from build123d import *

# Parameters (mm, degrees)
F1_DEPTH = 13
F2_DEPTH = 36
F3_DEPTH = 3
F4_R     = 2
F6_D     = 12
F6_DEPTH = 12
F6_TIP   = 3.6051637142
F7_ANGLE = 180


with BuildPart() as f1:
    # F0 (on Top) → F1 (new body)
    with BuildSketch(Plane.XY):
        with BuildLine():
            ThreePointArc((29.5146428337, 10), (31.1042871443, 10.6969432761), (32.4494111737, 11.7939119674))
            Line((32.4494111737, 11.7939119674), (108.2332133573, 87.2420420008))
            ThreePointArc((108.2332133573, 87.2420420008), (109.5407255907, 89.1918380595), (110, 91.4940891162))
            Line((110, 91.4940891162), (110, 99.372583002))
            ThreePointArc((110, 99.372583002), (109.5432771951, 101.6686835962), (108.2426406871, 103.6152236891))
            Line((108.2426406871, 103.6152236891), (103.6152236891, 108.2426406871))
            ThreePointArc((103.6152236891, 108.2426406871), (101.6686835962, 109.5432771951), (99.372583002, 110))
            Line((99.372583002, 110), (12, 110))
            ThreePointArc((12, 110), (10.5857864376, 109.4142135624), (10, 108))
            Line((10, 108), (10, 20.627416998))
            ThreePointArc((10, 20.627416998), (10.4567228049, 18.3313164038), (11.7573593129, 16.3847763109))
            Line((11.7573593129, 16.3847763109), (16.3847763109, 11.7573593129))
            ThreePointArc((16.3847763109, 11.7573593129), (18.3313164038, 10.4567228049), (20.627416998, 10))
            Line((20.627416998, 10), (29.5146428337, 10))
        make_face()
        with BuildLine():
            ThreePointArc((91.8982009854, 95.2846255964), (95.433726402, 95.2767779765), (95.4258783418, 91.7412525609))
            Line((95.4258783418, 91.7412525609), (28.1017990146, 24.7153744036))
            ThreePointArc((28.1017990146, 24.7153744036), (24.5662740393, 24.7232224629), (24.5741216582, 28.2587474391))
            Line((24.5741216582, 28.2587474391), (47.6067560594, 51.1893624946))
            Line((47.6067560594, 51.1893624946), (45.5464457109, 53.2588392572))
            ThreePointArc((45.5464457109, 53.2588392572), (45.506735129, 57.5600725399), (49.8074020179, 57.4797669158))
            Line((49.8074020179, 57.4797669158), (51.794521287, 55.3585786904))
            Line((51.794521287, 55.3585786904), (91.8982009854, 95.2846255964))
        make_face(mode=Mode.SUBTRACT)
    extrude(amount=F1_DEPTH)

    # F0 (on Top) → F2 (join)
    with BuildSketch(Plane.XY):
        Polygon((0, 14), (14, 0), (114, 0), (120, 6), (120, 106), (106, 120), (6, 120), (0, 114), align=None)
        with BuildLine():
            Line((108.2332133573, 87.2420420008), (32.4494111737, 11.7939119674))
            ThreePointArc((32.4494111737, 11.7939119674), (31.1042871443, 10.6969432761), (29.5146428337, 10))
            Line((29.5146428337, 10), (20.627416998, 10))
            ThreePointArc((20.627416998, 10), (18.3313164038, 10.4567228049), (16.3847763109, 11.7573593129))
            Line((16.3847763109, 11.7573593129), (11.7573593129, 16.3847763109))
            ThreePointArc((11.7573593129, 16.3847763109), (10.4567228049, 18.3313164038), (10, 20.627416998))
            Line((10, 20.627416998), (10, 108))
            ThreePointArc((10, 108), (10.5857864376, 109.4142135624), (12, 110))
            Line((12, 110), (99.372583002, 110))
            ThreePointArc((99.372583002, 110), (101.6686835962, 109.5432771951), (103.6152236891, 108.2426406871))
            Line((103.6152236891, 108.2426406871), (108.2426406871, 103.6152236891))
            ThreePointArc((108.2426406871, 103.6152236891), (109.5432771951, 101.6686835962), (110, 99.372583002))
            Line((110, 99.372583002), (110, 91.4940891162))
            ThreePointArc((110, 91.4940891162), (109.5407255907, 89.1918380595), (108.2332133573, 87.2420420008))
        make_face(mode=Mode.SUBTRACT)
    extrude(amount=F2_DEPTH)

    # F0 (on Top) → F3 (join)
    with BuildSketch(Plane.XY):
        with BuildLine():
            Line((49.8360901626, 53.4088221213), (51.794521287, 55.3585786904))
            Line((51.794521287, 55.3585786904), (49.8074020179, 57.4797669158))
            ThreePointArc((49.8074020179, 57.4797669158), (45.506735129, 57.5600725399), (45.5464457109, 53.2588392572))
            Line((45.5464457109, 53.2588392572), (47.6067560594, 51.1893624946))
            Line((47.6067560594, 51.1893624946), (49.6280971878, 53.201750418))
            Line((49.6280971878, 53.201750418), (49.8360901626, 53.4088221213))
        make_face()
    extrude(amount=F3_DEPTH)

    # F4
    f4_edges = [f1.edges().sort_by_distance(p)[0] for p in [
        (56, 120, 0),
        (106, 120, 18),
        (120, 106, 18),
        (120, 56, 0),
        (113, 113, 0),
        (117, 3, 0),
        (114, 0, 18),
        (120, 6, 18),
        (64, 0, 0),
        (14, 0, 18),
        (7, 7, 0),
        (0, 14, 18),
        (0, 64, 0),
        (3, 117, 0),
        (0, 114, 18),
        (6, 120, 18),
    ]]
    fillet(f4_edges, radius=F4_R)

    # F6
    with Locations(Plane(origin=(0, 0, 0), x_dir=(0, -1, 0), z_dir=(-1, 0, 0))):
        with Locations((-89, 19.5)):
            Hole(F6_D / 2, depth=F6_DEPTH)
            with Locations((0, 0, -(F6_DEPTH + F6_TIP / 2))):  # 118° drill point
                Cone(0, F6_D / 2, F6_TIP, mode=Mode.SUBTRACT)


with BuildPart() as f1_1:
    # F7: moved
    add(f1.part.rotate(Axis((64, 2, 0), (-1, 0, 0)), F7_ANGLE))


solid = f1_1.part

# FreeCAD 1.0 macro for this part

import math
import FreeCAD as App
import Part
import Sketcher
Q = App.Units.Quantity


def edges_at(feature, points):
    """Names of the edges that pass closest to the given points."""
    edges = feature.Shape.Edges
    near = lambda p: min(range(len(edges)), key=lambda i: edges[i].distToShape(Part.Vertex(*p))[0])
    return sorted({f"Edge{near(p) + 1}" for p in points})

doc = App.newDocument("Part")
body = doc.addObject("PartDesign::Body", "Body")

# Sketch on XY plane
sketch1 = body.newObject("Sketcher::SketchObject", "Sketch")
sketch1.AttachmentSupport = (doc.getObject("XY_Plane"), [""])
sketch1.MapMode = "FlatFace"
sketch1.addGeometry([
    Part.ArcOfCircle(Part.Circle(App.Vector(27.752919, 16.179648, 0), App.Vector(0, 0, 1), 6.425864), math.radians(-74.087951), math.radians(-43.040341)),  # 0
    Part.LineSegment(App.Vector(32.449411, 11.793912, 0), App.Vector(108.233213, 87.242042, 0)),  # 1
    Part.ArcOfCircle(Part.Circle(App.Vector(104, 91.494089, 0), App.Vector(0, 0, 1), 6), math.radians(-45.127173), math.radians(0)),  # 2
    Part.LineSegment(App.Vector(110, 91.494089, 0), App.Vector(110, 99.372583, 0)),  # 3
    Part.ArcOfCircle(Part.Circle(App.Vector(104, 99.372583, 0), App.Vector(0, 0, 1), 6), math.radians(0), math.radians(45)),  # 4
    Part.LineSegment(App.Vector(108.242641, 103.615224, 0), App.Vector(103.615224, 108.242641, 0)),  # 5
    Part.ArcOfCircle(Part.Circle(App.Vector(99.372583, 104, 0), App.Vector(0, 0, 1), 6), math.radians(45), math.radians(90)),  # 6
    Part.LineSegment(App.Vector(99.372583, 110, 0), App.Vector(12, 110, 0)),  # 7
    Part.ArcOfCircle(Part.Circle(App.Vector(12, 108, 0), App.Vector(0, 0, 1), 2), math.radians(90), math.radians(180)),  # 8
    Part.LineSegment(App.Vector(10, 108, 0), App.Vector(10, 20.627417, 0)),  # 9
    Part.ArcOfCircle(Part.Circle(App.Vector(16, 20.627417, 0), App.Vector(0, 0, 1), 6), math.radians(180), math.radians(225)),  # 10
    Part.LineSegment(App.Vector(11.757359, 16.384776, 0), App.Vector(16.384776, 11.757359, 0)),  # 11
    Part.ArcOfCircle(Part.Circle(App.Vector(20.627417, 16, 0), App.Vector(0, 0, 1), 6), math.radians(-135), math.radians(-90)),  # 12
    Part.LineSegment(App.Vector(20.627417, 10, 0), App.Vector(29.514643, 10, 0)),  # 13
    Part.LineSegment(App.Vector(51.794521, 55.358579, 0), App.Vector(91.898201, 95.284626, 0)),  # 14
    Part.ArcOfCircle(Part.Circle(App.Vector(93.66204, 93.512939, 0), App.Vector(0, 0, 1), 2.5), math.radians(-45.127187), math.radians(134.872827)),  # 15
    Part.LineSegment(App.Vector(95.425878, 91.741253, 0), App.Vector(28.101799, 24.715374, 0)),  # 16
    Part.ArcOfCircle(Part.Circle(App.Vector(26.337961, 26.487061, 0), App.Vector(0, 0, 1), 2.5), math.radians(134.872827), math.radians(314.872813)),  # 17
    Part.LineSegment(App.Vector(24.574122, 28.258747, 0), App.Vector(47.606756, 51.189362, 0)),  # 18
    Part.LineSegment(App.Vector(47.606756, 51.189362, 0), App.Vector(45.546446, 53.258839, 0)),  # 19
    Part.ArcOfCircle(Part.Circle(App.Vector(47.618021, 55.428765, 0), App.Vector(0, 0, 1), 3), math.radians(43.130894), math.radians(226.328316)),  # 20
    Part.LineSegment(App.Vector(49.807402, 57.479767, 0), App.Vector(51.794521, 55.358579, 0)),  # 21
], False)
sketch1.addConstraint([
    Sketcher.Constraint("Coincident", 0, 2, 1, 1),
    Sketcher.Constraint("Tangent", 1, 2, 2, 1),
    Sketcher.Constraint("Tangent", 2, 2, 3, 1),
    Sketcher.Constraint("Tangent", 3, 2, 4, 1),
    Sketcher.Constraint("Tangent", 4, 2, 5, 1),
    Sketcher.Constraint("Tangent", 5, 2, 6, 1),
    Sketcher.Constraint("Tangent", 6, 2, 7, 1),
    Sketcher.Constraint("Tangent", 7, 2, 8, 1),
    Sketcher.Constraint("Tangent", 8, 2, 9, 1),
    Sketcher.Constraint("Tangent", 9, 2, 10, 1),
    Sketcher.Constraint("Tangent", 10, 2, 11, 1),
    Sketcher.Constraint("Tangent", 11, 2, 12, 1),
    Sketcher.Constraint("Tangent", 12, 2, 13, 1),
    Sketcher.Constraint("Coincident", 13, 2, 0, 1),
    Sketcher.Constraint("Tangent", 14, 2, 15, 2),
    Sketcher.Constraint("Tangent", 15, 1, 16, 1),
    Sketcher.Constraint("Tangent", 16, 2, 17, 2),
    Sketcher.Constraint("Tangent", 17, 1, 18, 1),
    Sketcher.Constraint("Coincident", 18, 2, 19, 1),
    Sketcher.Constraint("Coincident", 19, 2, 20, 2),
    Sketcher.Constraint("Tangent", 20, 1, 21, 1),
    Sketcher.Constraint("Coincident", 21, 2, 14, 1),
    Sketcher.Constraint("Vertical", 3),
    Sketcher.Constraint("Horizontal", 7),
    Sketcher.Constraint("Vertical", 9),
    Sketcher.Constraint("Horizontal", 13),
    Sketcher.Constraint("Equal", 2, 4),
    Sketcher.Constraint("Equal", 4, 6),
    Sketcher.Constraint("Equal", 6, 10),
    Sketcher.Constraint("Equal", 10, 12),
    Sketcher.Constraint("Equal", 15, 17),
    Sketcher.Constraint("Parallel", 5, 11),
    Sketcher.Constraint("Parallel", 1, 14),
    Sketcher.Constraint("Parallel", 14, 16),
    Sketcher.Constraint("Parallel", 16, 18),
    Sketcher.Constraint("Perpendicular", 18, 19),
    Sketcher.Constraint("Equal", 7, 9),
    Sketcher.Constraint("Equal", 5, 11),
    Sketcher.Constraint("Radius", 2, Q("6 mm")),
    Sketcher.Constraint("Radius", 8, Q("2 mm")),
    Sketcher.Constraint("Radius", 20, Q("3 mm")),
    Sketcher.Constraint("Radius", 15, Q("2.5 mm")),
    Sketcher.Constraint("Angle", 5, Q("135 deg")),
    Sketcher.Constraint("Distance", 16, Q("95 mm")),
    Sketcher.Constraint("DistanceX", -1, 1, 2, 3, Q("104 mm")),
    Sketcher.Constraint("DistanceY", -1, 1, 6, 3, Q("104 mm")),
    Sketcher.Constraint("DistanceX", -1, 1, 8, 3, Q("12 mm")),
    Sketcher.Constraint("Radius", 0, Q("6.425864 mm")),
    Sketcher.Constraint("Distance", 14, Q("56.589702 mm")),
    Sketcher.Constraint("DistanceX", -1, 1, 14, 2, Q("91.898201 mm")),
    Sketcher.Constraint("DistanceX", -1, 1, 16, 2, Q("28.101799 mm")),
    Sketcher.Constraint("DistanceX", 12, 3, 0, 3, Q("7.125502 mm")),
    Sketcher.Constraint("DistanceY", 0, 3, 17, 1, Q("12.079099 mm")),
    Sketcher.Constraint("DistanceY", 17, 3, 18, 2, Q("24.702301 mm")),
    Sketcher.Constraint("DistanceX", 20, 3, 21, 2, Q("4.1765 mm")),
    Sketcher.Constraint("Distance", 1, Q("106.937388 mm")),
    Sketcher.Constraint("DistanceX", 7, 2, 7, 1, Q("87.372583 mm")),
    Sketcher.Constraint("DistanceX", 13, 1, 13, 2, Q("8.887226 mm")),
    Sketcher.Constraint("DistanceY", -1, 1, 19, 2, Q("53.258839 mm")),
])
pad1 = body.newObject("PartDesign::Pad", "Pad")
pad1.Profile = sketch1
pad1.Length = 13

# Sketch on XY plane
sketch2 = body.newObject("Sketcher::SketchObject", "Sketch001")
sketch2.AttachmentSupport = (doc.getObject("XY_Plane"), [""])
sketch2.MapMode = "FlatFace"
sketch2.addGeometry([
    Part.LineSegment(App.Vector(0, 14, 0), App.Vector(14, 0, 0)),  # 0
    Part.LineSegment(App.Vector(14, 0, 0), App.Vector(114, 0, 0)),  # 1
    Part.LineSegment(App.Vector(114, 0, 0), App.Vector(120, 6, 0)),  # 2
    Part.LineSegment(App.Vector(120, 6, 0), App.Vector(120, 106, 0)),  # 3
    Part.LineSegment(App.Vector(120, 106, 0), App.Vector(106, 120, 0)),  # 4
    Part.LineSegment(App.Vector(106, 120, 0), App.Vector(6, 120, 0)),  # 5
    Part.LineSegment(App.Vector(6, 120, 0), App.Vector(0, 114, 0)),  # 6
    Part.LineSegment(App.Vector(0, 114, 0), App.Vector(0, 14, 0)),  # 7
    Part.ArcOfCircle(Part.Circle(App.Vector(104, 91.494089, 0), App.Vector(0, 0, 1), 6), math.radians(-45.127173), math.radians(0)),  # 8
    Part.LineSegment(App.Vector(108.233213, 87.242042, 0), App.Vector(32.449411, 11.793912, 0)),  # 9
    Part.ArcOfCircle(Part.Circle(App.Vector(27.752919, 16.179648, 0), App.Vector(0, 0, 1), 6.425864), math.radians(-74.087951), math.radians(-43.040341)),  # 10
    Part.LineSegment(App.Vector(29.514643, 10, 0), App.Vector(20.627417, 10, 0)),  # 11
    Part.ArcOfCircle(Part.Circle(App.Vector(20.627417, 16, 0), App.Vector(0, 0, 1), 6), math.radians(-135), math.radians(-90)),  # 12
    Part.LineSegment(App.Vector(16.384776, 11.757359, 0), App.Vector(11.757359, 16.384776, 0)),  # 13
    Part.ArcOfCircle(Part.Circle(App.Vector(16, 20.627417, 0), App.Vector(0, 0, 1), 6), math.radians(180), math.radians(225)),  # 14
    Part.LineSegment(App.Vector(10, 20.627417, 0), App.Vector(10, 108, 0)),  # 15
    Part.ArcOfCircle(Part.Circle(App.Vector(12, 108, 0), App.Vector(0, 0, 1), 2), math.radians(90), math.radians(180)),  # 16
    Part.LineSegment(App.Vector(12, 110, 0), App.Vector(99.372583, 110, 0)),  # 17
    Part.ArcOfCircle(Part.Circle(App.Vector(99.372583, 104, 0), App.Vector(0, 0, 1), 6), math.radians(45), math.radians(90)),  # 18
    Part.LineSegment(App.Vector(103.615224, 108.242641, 0), App.Vector(108.242641, 103.615224, 0)),  # 19
    Part.ArcOfCircle(Part.Circle(App.Vector(104, 99.372583, 0), App.Vector(0, 0, 1), 6), math.radians(0), math.radians(45)),  # 20
    Part.LineSegment(App.Vector(110, 99.372583, 0), App.Vector(110, 91.494089, 0)),  # 21
], False)
sketch2.addConstraint([
    Sketcher.Constraint("Coincident", 0, 2, 1, 1),
    Sketcher.Constraint("Coincident", 1, 2, 2, 1),
    Sketcher.Constraint("Coincident", 2, 2, 3, 1),
    Sketcher.Constraint("Coincident", 3, 2, 4, 1),
    Sketcher.Constraint("Coincident", 4, 2, 5, 1),
    Sketcher.Constraint("Coincident", 5, 2, 6, 1),
    Sketcher.Constraint("Coincident", 6, 2, 7, 1),
    Sketcher.Constraint("Coincident", 7, 2, 0, 1),
    Sketcher.Constraint("Tangent", 8, 1, 9, 1),
    Sketcher.Constraint("Coincident", 9, 2, 10, 2),
    Sketcher.Constraint("Coincident", 10, 1, 11, 1),
    Sketcher.Constraint("Tangent", 11, 2, 12, 2),
    Sketcher.Constraint("Tangent", 12, 1, 13, 1),
    Sketcher.Constraint("Tangent", 13, 2, 14, 2),
    Sketcher.Constraint("Tangent", 14, 1, 15, 1),
    Sketcher.Constraint("Tangent", 15, 2, 16, 2),
    Sketcher.Constraint("Tangent", 16, 1, 17, 1),
    Sketcher.Constraint("Tangent", 17, 2, 18, 2),
    Sketcher.Constraint("Tangent", 18, 1, 19, 1),
    Sketcher.Constraint("Tangent", 19, 2, 20, 2),
    Sketcher.Constraint("Tangent", 20, 1, 21, 1),
    Sketcher.Constraint("Tangent", 21, 2, 8, 2),
    Sketcher.Constraint("Horizontal", 1),
    Sketcher.Constraint("Vertical", 3),
    Sketcher.Constraint("Horizontal", 5),
    Sketcher.Constraint("Vertical", 7),
    Sketcher.Constraint("Horizontal", 11),
    Sketcher.Constraint("Vertical", 15),
    Sketcher.Constraint("Horizontal", 17),
    Sketcher.Constraint("Vertical", 21),
    Sketcher.Constraint("Equal", 8, 12),
    Sketcher.Constraint("Equal", 12, 14),
    Sketcher.Constraint("Equal", 14, 18),
    Sketcher.Constraint("Equal", 18, 20),
    Sketcher.Constraint("PointOnObject", 0, 2, -1),
    Sketcher.Constraint("PointOnObject", 6, 2, -2),
    Sketcher.Constraint("Perpendicular", 0, 2),
    Sketcher.Constraint("Perpendicular", 2, 4),
    Sketcher.Constraint("Perpendicular", 4, 6),
    Sketcher.Constraint("Perpendicular", 6, 13),
    Sketcher.Constraint("Parallel", 13, 19),
    Sketcher.Constraint("Equal", 1, 5),
    Sketcher.Constraint("Equal", 5, 3),
    Sketcher.Constraint("Equal", 3, 7),
    Sketcher.Constraint("Equal", 17, 15),
    Sketcher.Constraint("Equal", 13, 19),
    Sketcher.Constraint("Radius", 8, Q("6 mm")),
    Sketcher.Constraint("Radius", 16, Q("2 mm")),
    Sketcher.Constraint("DistanceX", 1, 1, 1, 2, Q("100 mm")),
    Sketcher.Constraint("Angle", 0, Q("-45 deg")),
    Sketcher.Constraint("DistanceX", -1, 1, 8, 3, Q("104 mm")),
    Sketcher.Constraint("DistanceY", -1, 1, 12, 3, Q("16 mm")),
    Sketcher.Constraint("DistanceX", -1, 1, 14, 3, Q("16 mm")),
    Sketcher.Constraint("DistanceX", -1, 1, 0, 2, Q("14 mm")),
    Sketcher.Constraint("DistanceX", -1, 1, 2, 2, Q("120 mm")),
    Sketcher.Constraint("Radius", 10, Q("6.425864 mm")),
    Sketcher.Constraint("DistanceX", 12, 3, 10, 3, Q("7.125502 mm")),
    Sketcher.Constraint("Distance", 9, Q("106.937388 mm")),
    Sketcher.Constraint("DistanceX", 11, 2, 11, 1, Q("8.887226 mm")),
    Sketcher.Constraint("DistanceX", 17, 1, 17, 2, Q("87.372583 mm")),
    Sketcher.Constraint("DistanceY", 21, 2, 21, 1, Q("7.878494 mm")),
])
pad2 = body.newObject("PartDesign::Pad", "Pad001")
pad2.Profile = sketch2
pad2.Length = 36

# Sketch on XY plane
sketch3 = body.newObject("Sketcher::SketchObject", "Sketch002")
sketch3.AttachmentSupport = (doc.getObject("XY_Plane"), [""])
sketch3.MapMode = "FlatFace"
sketch3.addGeometry([
    Part.LineSegment(App.Vector(49.83609, 53.408822, 0), App.Vector(51.794521, 55.358579, 0)),  # 0
    Part.LineSegment(App.Vector(51.794521, 55.358579, 0), App.Vector(49.807402, 57.479767, 0)),  # 1
    Part.ArcOfCircle(Part.Circle(App.Vector(47.618021, 55.428765, 0), App.Vector(0, 0, 1), 3), math.radians(43.130894), math.radians(226.328316)),  # 2
    Part.LineSegment(App.Vector(45.546446, 53.258839, 0), App.Vector(47.606756, 51.189362, 0)),  # 3
    Part.LineSegment(App.Vector(47.606756, 51.189362, 0), App.Vector(49.628097, 53.20175, 0)),  # 4
    Part.LineSegment(App.Vector(49.628097, 53.20175, 0), App.Vector(49.83609, 53.408822, 0)),  # 5
], False)
sketch3.addConstraint([
    Sketcher.Constraint("Coincident", 0, 2, 1, 1),
    Sketcher.Constraint("Coincident", 1, 2, 2, 1),
    Sketcher.Constraint("Coincident", 2, 2, 3, 1),
    Sketcher.Constraint("Coincident", 3, 2, 4, 1),
    Sketcher.Constraint("Coincident", 4, 2, 5, 1),
    Sketcher.Constraint("Coincident", 5, 2, 0, 1),
    Sketcher.Constraint("Radius", 2, Q("3 mm")),
    Sketcher.Constraint("DistanceX", 2, 3, 0, 2, Q("4.1765 mm")),
    Sketcher.Constraint("Distance", 1, Q("2.906559 mm")),
    Sketcher.Constraint("DistanceX", -1, 1, 2, 3, Q("47.618021 mm")),
    Sketcher.Constraint("DistanceY", -1, 1, 0, 2, Q("55.358579 mm")),
    Sketcher.Constraint("DistanceY", -1, 1, 2, 2, Q("53.258839 mm")),
    Sketcher.Constraint("DistanceY", -1, 1, 4, 2, Q("53.20175 mm")),
    Sketcher.Constraint("DistanceX", -1, 1, 5, 2, Q("49.83609 mm")),
    Sketcher.Constraint("DistanceX", 1, 2, 0, 2, Q("1.987119 mm")),
    Sketcher.Constraint("DistanceX", 2, 2, 3, 2, Q("2.06031 mm")),
    Sketcher.Constraint("DistanceX", 3, 2, 4, 2, Q("2.021341 mm")),
    Sketcher.Constraint("DistanceY", 4, 2, 5, 2, Q("0.207072 mm")),
    Sketcher.Constraint("DistanceY", 3, 2, 5, 2, Q("2.21946 mm")),
])
pad3 = body.newObject("PartDesign::Pad", "Pad002")
pad3.Profile = sketch3
pad3.Length = 3
doc.recompute()

fillet = body.newObject("PartDesign::Fillet", "Fillet")
fillet.Base = (pad3, edges_at(pad3, [
    (56, 120, 0),
    (106, 120, 18),
    (120, 106, 18),
    (120, 56, 0),
    (113, 113, 0),
    (117, 3, 0),
    (114, 0, 18),
    (120, 6, 18),
    (64, 0, 0),
    (14, 0, 18),
    (7, 7, 0),
    (0, 14, 18),
    (0, 64, 0),
    (3, 117, 0),
    (0, 114, 18),
    (6, 120, 18),
]))
fillet.Radius = 2

# Sketch on YZ plane
sketch4 = body.newObject("Sketcher::SketchObject", "Sketch003")
sketch4.AttachmentSupport = (doc.getObject("YZ_Plane"), [""])
sketch4.MapMode = "FlatFace"
sketch4.addGeometry(Part.Circle(App.Vector(89, 19.5, 0), App.Vector(0, 0, 1), 6), False)
sketch4.addConstraint([
    Sketcher.Constraint("Diameter", 0, Q("12 mm")),
    Sketcher.Constraint("DistanceX", -1, 1, 0, 3, Q("89 mm")),
    Sketcher.Constraint("DistanceY", -1, 1, 0, 3, Q("19.5 mm")),
])
doc.recompute()
hole = body.newObject("PartDesign::Hole", "Hole")
hole.Profile = sketch4
hole.ThreadType = "None"
hole.Diameter = 12
hole.DepthType = "Dimension"
hole.Depth = 12
hole.DrillPoint = "Angled"
hole.DrillPointAngle = 118
hole.Reversed = True
body2 = doc.addObject("PartDesign::Body", "Body001")
doc.recompute()

body.Placement = App.Placement(App.Vector(0, 4, 0), App.Rotation(App.Vector(-1, 0, 0), 180))
boolean = body2.newObject("PartDesign::Boolean", "Boolean")
boolean.Type = "Fuse"
boolean.addObjects([body])

doc.recompute()
